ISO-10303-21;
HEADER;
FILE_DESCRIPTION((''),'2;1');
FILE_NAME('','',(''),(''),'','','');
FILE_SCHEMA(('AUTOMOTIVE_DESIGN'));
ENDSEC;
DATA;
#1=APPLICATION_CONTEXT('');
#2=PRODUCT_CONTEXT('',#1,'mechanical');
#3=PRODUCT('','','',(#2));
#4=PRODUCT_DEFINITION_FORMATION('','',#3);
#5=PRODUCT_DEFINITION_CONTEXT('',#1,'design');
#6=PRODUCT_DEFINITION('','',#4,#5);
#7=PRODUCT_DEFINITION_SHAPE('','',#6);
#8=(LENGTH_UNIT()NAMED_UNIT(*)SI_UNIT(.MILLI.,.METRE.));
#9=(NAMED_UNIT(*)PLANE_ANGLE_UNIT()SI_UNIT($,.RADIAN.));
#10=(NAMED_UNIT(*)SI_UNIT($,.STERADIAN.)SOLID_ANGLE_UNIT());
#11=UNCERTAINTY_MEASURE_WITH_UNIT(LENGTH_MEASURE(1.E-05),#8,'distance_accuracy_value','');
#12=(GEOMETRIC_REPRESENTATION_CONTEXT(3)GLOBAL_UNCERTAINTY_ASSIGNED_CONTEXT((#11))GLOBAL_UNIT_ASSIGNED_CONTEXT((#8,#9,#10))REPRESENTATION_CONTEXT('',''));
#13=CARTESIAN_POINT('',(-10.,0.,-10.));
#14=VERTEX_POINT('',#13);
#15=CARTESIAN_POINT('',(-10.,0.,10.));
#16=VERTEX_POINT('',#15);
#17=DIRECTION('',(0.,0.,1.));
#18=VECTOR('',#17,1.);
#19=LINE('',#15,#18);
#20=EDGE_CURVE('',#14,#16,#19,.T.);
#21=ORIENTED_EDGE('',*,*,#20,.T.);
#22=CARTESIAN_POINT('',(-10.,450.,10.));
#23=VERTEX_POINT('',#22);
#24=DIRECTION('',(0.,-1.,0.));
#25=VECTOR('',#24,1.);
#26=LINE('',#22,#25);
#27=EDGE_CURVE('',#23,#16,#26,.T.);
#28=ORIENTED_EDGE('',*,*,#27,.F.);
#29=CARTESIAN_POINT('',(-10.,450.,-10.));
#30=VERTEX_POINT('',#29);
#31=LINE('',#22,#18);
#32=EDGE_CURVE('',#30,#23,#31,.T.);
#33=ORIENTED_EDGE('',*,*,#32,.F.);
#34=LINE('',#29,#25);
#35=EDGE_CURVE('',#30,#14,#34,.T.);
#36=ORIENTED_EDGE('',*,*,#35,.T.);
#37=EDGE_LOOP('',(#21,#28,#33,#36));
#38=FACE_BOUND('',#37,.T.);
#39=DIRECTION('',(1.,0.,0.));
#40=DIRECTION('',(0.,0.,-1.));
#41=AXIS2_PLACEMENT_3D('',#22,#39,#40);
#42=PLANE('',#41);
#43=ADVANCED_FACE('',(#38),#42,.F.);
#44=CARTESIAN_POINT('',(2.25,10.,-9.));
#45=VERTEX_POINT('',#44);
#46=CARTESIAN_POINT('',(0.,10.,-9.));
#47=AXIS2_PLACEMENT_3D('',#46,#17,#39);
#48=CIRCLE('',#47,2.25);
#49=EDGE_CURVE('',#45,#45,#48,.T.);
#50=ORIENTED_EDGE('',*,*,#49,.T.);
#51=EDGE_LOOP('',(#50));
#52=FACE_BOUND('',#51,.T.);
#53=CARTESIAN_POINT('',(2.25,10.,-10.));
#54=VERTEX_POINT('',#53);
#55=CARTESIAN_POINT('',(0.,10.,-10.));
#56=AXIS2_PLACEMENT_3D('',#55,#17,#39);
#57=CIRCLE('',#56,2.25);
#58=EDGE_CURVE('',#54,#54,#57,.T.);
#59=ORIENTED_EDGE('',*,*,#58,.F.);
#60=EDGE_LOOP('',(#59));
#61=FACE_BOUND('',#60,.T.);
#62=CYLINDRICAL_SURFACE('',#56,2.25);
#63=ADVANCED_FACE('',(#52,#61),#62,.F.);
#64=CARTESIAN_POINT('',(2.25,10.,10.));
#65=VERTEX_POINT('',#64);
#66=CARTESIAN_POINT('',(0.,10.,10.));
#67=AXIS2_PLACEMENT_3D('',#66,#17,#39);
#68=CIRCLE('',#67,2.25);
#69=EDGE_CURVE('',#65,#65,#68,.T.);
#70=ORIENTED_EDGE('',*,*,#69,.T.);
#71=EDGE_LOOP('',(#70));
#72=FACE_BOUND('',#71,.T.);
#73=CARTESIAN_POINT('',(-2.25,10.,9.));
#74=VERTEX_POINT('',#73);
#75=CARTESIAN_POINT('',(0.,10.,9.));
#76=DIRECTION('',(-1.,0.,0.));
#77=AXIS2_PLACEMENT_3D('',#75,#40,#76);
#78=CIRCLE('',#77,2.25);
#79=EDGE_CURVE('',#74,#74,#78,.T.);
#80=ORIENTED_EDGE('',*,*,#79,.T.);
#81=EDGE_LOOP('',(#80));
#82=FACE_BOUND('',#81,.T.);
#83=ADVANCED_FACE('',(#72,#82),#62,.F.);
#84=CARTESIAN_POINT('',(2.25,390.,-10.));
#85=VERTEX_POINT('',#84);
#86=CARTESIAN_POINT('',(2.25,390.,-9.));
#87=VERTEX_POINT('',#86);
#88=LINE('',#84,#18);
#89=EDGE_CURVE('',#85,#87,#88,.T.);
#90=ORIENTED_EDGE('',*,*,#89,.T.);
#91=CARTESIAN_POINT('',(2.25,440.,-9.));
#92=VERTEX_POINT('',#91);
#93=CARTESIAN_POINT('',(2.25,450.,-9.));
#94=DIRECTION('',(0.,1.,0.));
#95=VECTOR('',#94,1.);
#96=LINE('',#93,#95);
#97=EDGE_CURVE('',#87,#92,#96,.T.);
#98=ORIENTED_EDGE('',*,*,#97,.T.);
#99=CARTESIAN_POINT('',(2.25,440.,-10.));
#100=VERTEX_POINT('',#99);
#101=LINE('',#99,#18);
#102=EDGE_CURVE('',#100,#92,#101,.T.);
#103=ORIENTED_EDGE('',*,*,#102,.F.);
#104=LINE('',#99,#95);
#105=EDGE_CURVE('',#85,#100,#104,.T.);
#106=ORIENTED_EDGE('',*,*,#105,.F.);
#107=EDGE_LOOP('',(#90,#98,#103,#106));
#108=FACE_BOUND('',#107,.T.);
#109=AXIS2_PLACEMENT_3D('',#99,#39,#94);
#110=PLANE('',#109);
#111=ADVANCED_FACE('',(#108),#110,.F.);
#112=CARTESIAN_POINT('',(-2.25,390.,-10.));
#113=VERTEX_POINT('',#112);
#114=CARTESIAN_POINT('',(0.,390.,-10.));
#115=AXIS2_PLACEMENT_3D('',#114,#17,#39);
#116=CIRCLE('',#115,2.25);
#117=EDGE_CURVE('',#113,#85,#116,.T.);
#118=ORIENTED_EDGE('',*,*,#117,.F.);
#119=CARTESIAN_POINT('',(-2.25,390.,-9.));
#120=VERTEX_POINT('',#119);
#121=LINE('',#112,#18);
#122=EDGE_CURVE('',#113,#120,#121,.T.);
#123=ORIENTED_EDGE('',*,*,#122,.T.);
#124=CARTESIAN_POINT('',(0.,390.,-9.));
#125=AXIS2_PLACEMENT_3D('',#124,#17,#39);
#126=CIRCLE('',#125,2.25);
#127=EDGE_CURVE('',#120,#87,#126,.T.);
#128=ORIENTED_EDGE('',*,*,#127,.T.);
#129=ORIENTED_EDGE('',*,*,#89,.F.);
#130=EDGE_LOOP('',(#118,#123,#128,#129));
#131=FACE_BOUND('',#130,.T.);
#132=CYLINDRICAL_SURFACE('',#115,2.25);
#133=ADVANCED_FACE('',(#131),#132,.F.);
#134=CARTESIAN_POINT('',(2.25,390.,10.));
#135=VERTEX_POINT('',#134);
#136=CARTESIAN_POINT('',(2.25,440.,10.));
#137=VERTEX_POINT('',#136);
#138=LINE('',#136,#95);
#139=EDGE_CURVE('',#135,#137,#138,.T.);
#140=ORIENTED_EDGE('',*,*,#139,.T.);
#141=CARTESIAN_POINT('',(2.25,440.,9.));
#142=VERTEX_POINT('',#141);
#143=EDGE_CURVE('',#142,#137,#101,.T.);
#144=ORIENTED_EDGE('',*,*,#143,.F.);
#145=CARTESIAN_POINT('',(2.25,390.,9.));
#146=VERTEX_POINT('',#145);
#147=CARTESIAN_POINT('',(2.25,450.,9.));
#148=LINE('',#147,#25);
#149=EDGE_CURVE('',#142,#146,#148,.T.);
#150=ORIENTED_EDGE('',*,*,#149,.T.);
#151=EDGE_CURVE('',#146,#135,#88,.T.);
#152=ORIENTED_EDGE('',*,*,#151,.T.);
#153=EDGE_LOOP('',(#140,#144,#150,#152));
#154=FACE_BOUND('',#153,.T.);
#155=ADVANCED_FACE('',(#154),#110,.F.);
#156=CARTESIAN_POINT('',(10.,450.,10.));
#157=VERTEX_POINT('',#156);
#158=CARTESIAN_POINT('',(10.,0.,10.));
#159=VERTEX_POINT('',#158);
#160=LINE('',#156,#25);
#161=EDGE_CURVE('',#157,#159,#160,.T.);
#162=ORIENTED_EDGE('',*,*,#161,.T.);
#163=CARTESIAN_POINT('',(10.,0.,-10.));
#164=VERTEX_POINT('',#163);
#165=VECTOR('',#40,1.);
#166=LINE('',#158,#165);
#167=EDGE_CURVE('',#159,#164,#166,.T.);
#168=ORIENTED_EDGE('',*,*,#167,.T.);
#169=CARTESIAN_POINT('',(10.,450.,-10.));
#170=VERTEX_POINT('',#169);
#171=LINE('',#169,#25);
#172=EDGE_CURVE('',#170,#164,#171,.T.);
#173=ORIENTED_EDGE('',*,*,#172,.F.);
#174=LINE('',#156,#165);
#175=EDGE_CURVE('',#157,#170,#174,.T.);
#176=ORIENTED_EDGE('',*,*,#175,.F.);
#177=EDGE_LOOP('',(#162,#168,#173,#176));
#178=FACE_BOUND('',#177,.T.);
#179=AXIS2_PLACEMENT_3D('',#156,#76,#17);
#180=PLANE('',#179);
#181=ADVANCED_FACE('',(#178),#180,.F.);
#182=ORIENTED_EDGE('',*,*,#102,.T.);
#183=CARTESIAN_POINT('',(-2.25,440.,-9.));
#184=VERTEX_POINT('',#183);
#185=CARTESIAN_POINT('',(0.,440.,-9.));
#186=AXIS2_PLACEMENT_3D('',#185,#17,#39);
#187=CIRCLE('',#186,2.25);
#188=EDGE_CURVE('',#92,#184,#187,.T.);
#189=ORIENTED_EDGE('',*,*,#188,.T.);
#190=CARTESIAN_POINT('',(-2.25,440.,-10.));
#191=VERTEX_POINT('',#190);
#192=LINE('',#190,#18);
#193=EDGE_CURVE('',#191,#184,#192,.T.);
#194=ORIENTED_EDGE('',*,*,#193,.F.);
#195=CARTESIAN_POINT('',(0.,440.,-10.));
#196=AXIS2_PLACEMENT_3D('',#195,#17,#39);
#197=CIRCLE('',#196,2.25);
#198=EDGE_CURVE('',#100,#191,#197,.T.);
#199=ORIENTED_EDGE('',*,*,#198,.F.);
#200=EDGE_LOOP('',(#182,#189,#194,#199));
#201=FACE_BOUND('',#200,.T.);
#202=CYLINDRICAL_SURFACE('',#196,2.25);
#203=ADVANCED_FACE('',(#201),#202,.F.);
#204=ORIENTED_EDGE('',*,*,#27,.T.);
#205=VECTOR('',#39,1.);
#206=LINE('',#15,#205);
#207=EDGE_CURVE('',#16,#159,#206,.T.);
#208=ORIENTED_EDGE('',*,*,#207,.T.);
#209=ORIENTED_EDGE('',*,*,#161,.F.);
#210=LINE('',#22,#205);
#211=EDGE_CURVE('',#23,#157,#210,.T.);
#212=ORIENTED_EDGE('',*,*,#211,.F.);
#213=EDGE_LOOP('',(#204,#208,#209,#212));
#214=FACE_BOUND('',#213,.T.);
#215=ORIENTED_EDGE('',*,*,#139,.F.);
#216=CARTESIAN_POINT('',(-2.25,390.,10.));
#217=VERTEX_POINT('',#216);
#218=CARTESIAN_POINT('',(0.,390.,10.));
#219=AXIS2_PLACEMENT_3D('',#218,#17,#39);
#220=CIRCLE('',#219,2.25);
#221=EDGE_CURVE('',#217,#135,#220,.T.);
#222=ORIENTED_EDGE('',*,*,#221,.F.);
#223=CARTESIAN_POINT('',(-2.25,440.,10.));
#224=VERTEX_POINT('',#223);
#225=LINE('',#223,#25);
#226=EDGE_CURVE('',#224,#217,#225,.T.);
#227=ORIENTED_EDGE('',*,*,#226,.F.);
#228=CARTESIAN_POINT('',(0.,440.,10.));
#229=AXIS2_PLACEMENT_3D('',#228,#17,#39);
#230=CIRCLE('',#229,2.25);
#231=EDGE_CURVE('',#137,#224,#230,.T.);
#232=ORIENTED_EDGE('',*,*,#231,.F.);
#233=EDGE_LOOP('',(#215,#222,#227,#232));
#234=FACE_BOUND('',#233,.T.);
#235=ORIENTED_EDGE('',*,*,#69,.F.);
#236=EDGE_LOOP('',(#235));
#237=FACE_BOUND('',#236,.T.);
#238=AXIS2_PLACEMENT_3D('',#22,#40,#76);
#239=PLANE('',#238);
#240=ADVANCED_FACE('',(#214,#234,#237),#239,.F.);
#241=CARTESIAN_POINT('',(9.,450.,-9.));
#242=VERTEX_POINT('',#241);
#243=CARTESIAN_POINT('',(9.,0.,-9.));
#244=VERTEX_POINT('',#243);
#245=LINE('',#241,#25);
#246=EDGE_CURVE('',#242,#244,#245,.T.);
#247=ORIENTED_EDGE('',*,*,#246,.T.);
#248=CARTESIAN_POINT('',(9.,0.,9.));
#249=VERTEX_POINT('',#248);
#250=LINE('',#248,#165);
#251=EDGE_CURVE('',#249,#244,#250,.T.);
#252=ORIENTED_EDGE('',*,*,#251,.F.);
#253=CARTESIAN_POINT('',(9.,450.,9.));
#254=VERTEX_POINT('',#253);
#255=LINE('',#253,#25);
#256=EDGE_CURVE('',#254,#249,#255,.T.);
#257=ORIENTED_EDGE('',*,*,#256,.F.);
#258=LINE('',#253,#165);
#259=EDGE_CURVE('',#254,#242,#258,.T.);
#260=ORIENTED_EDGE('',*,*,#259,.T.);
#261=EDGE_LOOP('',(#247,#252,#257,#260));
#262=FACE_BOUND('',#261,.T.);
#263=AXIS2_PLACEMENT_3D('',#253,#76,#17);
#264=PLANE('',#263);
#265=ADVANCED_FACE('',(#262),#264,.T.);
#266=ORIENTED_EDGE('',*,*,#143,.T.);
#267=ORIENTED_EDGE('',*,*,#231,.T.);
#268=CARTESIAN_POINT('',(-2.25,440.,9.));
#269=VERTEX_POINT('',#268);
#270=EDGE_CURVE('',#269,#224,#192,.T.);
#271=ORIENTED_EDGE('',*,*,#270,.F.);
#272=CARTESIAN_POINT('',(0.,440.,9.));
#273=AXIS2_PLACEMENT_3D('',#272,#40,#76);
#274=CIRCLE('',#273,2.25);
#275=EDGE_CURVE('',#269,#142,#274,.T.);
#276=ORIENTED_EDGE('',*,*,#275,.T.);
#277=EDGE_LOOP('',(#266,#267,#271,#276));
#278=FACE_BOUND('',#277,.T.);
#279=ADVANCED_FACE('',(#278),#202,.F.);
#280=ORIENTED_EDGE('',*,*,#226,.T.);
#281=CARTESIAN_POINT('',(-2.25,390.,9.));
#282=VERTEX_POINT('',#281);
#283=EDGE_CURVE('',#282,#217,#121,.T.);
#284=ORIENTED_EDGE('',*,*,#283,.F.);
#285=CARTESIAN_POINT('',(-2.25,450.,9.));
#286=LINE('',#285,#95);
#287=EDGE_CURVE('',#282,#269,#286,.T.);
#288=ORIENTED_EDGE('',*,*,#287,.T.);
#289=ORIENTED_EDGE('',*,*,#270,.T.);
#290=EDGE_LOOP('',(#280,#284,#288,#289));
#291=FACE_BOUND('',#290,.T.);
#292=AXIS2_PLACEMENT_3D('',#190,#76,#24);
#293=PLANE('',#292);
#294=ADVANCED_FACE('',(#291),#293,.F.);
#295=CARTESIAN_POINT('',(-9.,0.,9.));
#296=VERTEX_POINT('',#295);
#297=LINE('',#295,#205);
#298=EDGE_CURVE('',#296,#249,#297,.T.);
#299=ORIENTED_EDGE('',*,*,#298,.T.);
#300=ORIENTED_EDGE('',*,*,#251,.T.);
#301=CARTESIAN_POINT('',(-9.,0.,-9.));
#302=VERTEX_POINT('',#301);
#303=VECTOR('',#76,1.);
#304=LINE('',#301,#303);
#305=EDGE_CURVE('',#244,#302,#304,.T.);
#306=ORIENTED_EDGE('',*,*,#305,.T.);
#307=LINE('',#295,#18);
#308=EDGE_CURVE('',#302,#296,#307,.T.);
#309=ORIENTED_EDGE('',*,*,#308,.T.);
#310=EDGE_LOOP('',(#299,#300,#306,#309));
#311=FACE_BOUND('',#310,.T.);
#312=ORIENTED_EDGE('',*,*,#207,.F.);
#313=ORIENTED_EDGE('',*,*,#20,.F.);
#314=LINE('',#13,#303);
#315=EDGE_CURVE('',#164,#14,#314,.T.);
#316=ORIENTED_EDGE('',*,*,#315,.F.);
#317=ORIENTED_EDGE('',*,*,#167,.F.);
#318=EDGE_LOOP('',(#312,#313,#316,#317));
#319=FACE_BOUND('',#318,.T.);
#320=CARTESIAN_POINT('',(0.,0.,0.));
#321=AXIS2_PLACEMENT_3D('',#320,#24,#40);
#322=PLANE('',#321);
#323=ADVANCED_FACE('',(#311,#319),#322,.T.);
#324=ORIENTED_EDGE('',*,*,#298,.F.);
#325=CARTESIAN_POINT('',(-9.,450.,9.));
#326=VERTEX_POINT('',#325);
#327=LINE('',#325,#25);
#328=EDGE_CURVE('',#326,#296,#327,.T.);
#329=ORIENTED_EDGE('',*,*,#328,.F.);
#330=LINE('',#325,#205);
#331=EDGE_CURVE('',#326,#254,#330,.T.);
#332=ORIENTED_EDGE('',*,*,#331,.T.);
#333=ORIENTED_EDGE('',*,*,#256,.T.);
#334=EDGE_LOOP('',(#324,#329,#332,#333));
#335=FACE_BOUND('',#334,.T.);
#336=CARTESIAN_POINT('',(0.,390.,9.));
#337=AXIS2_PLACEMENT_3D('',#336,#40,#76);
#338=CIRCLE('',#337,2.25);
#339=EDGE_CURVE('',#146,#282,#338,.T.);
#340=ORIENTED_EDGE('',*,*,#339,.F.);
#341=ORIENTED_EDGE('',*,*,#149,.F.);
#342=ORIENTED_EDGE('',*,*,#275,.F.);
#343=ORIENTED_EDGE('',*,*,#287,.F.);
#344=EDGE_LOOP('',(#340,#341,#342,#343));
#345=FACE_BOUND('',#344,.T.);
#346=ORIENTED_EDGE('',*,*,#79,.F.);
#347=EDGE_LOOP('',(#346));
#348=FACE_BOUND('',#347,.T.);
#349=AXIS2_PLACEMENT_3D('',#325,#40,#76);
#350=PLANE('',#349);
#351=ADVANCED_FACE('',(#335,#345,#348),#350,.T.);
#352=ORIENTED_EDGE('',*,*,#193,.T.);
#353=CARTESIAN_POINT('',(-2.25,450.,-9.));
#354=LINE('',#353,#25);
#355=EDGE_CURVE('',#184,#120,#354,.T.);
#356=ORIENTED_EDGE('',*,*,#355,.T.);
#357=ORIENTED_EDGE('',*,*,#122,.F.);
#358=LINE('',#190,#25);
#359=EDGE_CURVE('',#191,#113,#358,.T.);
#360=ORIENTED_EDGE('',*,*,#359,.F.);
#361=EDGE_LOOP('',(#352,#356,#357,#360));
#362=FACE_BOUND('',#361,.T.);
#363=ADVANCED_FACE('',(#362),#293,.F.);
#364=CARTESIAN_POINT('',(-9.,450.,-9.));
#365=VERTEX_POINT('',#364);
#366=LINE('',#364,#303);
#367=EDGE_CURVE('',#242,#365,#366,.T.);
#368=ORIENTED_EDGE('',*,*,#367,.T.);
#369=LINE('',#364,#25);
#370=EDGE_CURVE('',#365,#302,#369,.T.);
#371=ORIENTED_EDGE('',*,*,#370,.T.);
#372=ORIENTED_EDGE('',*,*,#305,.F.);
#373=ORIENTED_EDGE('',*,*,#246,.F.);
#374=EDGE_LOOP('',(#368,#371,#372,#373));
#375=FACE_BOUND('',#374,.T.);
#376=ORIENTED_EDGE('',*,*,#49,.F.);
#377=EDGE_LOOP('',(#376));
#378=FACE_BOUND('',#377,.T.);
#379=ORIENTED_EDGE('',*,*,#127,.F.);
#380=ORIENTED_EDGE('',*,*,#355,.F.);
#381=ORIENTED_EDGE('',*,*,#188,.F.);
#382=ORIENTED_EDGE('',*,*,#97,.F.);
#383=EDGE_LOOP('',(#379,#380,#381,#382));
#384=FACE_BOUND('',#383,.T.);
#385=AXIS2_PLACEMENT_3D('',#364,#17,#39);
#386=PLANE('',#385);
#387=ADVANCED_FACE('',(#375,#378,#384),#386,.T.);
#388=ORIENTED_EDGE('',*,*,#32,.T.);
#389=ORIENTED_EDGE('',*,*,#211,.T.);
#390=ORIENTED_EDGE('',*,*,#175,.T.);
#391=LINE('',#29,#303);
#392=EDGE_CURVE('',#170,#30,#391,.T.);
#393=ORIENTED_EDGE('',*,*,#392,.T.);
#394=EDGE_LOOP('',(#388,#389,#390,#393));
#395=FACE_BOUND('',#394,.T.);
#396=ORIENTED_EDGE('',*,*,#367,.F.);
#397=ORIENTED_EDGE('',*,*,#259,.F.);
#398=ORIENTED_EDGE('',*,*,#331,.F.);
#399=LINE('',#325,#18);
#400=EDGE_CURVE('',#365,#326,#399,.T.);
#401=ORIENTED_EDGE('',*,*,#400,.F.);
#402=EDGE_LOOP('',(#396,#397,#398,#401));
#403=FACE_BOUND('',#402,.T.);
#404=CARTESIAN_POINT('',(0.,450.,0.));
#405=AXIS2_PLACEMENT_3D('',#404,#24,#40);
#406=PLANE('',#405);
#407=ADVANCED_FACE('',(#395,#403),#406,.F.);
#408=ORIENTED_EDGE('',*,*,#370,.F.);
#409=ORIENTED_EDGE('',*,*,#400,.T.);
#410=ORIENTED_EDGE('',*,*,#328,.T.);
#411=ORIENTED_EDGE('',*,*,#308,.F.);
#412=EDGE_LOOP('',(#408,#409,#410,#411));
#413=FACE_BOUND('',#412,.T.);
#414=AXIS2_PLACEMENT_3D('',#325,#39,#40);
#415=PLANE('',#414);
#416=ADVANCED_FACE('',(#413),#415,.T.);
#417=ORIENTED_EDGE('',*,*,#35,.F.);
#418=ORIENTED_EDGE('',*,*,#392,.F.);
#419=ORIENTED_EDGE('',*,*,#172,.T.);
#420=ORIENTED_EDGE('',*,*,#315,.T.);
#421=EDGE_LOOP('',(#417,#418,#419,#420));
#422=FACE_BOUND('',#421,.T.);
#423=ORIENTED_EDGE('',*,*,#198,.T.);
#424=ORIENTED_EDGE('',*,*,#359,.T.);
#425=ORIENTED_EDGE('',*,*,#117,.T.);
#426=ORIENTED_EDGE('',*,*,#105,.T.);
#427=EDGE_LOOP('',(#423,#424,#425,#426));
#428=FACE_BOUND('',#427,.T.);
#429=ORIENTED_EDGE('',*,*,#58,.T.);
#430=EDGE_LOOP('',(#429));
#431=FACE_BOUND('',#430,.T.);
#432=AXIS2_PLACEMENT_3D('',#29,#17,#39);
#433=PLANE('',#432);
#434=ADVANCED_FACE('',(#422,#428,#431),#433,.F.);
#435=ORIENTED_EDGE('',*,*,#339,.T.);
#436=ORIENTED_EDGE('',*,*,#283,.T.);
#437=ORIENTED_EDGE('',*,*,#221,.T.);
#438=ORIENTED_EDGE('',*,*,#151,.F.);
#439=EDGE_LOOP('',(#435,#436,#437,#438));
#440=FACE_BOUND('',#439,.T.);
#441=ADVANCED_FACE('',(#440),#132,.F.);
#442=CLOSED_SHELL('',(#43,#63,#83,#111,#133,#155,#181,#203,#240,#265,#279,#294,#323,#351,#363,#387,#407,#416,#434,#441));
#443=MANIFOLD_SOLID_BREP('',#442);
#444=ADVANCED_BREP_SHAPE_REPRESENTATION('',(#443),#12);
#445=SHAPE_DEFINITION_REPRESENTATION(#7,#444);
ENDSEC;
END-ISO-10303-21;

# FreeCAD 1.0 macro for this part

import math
import FreeCAD as App
import Part
import Sketcher
from FreeCAD import Vector
Q = App.Units.Quantity


def add_polygon(sketch, points):
    """Adds a closed chain of lines whose ends are joined by coincident constraints."""
    first, n = sketch.GeometryCount, len(points)
    for a, b in zip(points, points[1:] + points[:1]):
        sketch.addGeometry(Part.LineSegment(App.Vector(*a, 0), App.Vector(*b, 0)), False)
    for i in range(n):
        sketch.addConstraint(Sketcher.Constraint("Coincident", first + i, 2, first + (i + 1) % n, 1))

doc = App.newDocument("Part")
body = doc.addObject("PartDesign::Body", "Body")

# Sketch on XZ plane
sketch1 = body.newObject("Sketcher::SketchObject", "Sketch")
sketch1.AttachmentSupport = (doc.getObject("XZ_Plane"), [""])
sketch1.MapMode = "FlatFace"
add_polygon(sketch1, [(-10, -10), (-10, 10), (10, 10), (10, -10)])  # lines 0-3
add_polygon(sketch1, [(9, 9), (-9, 9), (-9, -9), (9, -9)])  # lines 4-7
sketch1.addConstraint(Sketcher.Constraint("Vertical", 0))
sketch1.addConstraint(Sketcher.Constraint("Horizontal", 1))
sketch1.addConstraint(Sketcher.Constraint("Vertical", 2))
sketch1.addConstraint(Sketcher.Constraint("Horizontal", 3))
sketch1.addConstraint(Sketcher.Constraint("Horizontal", 4))
sketch1.addConstraint(Sketcher.Constraint("Vertical", 5))
sketch1.addConstraint(Sketcher.Constraint("Horizontal", 6))
sketch1.addConstraint(Sketcher.Constraint("Vertical", 7))
sketch1.addConstraint(Sketcher.Constraint("Symmetric", 0, 2, 2, 2, -1, 1))
sketch1.addConstraint(Sketcher.Constraint("Symmetric", 4, 2, 6, 2, -1, 1))
sketch1.addConstraint(Sketcher.Constraint("Equal", 3, 0))
sketch1.addConstraint(Sketcher.Constraint("Equal", 6, 5))
sketch1.addConstraint(Sketcher.Constraint("DistanceX", 1, 1, 1, 2, Q("20 mm")))
sketch1.addConstraint(Sketcher.Constraint("DistanceX", 4, 2, 4, 1, Q("18 mm")))
pad1 = body.newObject("PartDesign::Pad", "Pad")
pad1.Profile = sketch1
pad1.Length = 450
pad1.Reversed = True

# Sketch on XY plane
sketch2 = body.newObject("Sketcher::SketchObject", "Sketch001")
sketch2.AttachmentSupport = (doc.getObject("XY_Plane"), [""])
sketch2.MapMode = "FlatFace"
sketch2.AttachmentOffset = App.Placement(Vector(0, 0, 10), App.Rotation())
sketch2.addGeometry(Part.Circle(Vector(0, 10, 0), Vector(0, 0, 1), 2.25), False)
sketch2.addGeometry(Part.LineSegment(Vector(2.25, 390, 0), Vector(2.25, 440, 0)), False)
sketch2.addGeometry(Part.ArcOfCircle(Part.Circle(Vector(0, 440, 0), Vector(0, 0, 1), 2.25), math.radians(0), math.radians(180)), False)
sketch2.addGeometry(Part.LineSegment(Vector(-2.25, 440, 0), Vector(-2.25, 390, 0)), False)
sketch2.addGeometry(Part.ArcOfCircle(Part.Circle(Vector(0, 390, 0), Vector(0, 0, 1), 2.25), math.radians(180), math.radians(360)), False)
sketch2.addConstraint(Sketcher.Constraint("Tangent", 1, 2, 2, 1))
sketch2.addConstraint(Sketcher.Constraint("Tangent", 2, 2, 3, 1))
sketch2.addConstraint(Sketcher.Constraint("Tangent", 3, 2, 4, 1))
sketch2.addConstraint(Sketcher.Constraint("Tangent", 4, 2, 1, 1))
sketch2.addConstraint(Sketcher.Constraint("Vertical", 1))
sketch2.addConstraint(Sketcher.Constraint("Vertical", 3))
sketch2.addConstraint(Sketcher.Constraint("Equal", 0, 2))
sketch2.addConstraint(Sketcher.Constraint("PointOnObject", 0, 3, -2))
sketch2.addConstraint(Sketcher.Constraint("PointOnObject", 2, 3, -2))
sketch2.addConstraint(Sketcher.Constraint("Diameter", 0, Q("4.5 mm")))
sketch2.addConstraint(Sketcher.Constraint("DistanceY", 1, 1, 1, 2, Q("50 mm")))
sketch2.addConstraint(Sketcher.Constraint("DistanceY", -1, 1, 0, 3, Q("10 mm")))
sketch2.addConstraint(Sketcher.Constraint("DistanceY", -1, 1, 2, 3, Q("440 mm")))
pocket1 = body.newObject("PartDesign::Pocket", "Pocket")
pocket1.Profile = sketch2
pocket1.Type = "ThroughAll"

doc.recompute()
